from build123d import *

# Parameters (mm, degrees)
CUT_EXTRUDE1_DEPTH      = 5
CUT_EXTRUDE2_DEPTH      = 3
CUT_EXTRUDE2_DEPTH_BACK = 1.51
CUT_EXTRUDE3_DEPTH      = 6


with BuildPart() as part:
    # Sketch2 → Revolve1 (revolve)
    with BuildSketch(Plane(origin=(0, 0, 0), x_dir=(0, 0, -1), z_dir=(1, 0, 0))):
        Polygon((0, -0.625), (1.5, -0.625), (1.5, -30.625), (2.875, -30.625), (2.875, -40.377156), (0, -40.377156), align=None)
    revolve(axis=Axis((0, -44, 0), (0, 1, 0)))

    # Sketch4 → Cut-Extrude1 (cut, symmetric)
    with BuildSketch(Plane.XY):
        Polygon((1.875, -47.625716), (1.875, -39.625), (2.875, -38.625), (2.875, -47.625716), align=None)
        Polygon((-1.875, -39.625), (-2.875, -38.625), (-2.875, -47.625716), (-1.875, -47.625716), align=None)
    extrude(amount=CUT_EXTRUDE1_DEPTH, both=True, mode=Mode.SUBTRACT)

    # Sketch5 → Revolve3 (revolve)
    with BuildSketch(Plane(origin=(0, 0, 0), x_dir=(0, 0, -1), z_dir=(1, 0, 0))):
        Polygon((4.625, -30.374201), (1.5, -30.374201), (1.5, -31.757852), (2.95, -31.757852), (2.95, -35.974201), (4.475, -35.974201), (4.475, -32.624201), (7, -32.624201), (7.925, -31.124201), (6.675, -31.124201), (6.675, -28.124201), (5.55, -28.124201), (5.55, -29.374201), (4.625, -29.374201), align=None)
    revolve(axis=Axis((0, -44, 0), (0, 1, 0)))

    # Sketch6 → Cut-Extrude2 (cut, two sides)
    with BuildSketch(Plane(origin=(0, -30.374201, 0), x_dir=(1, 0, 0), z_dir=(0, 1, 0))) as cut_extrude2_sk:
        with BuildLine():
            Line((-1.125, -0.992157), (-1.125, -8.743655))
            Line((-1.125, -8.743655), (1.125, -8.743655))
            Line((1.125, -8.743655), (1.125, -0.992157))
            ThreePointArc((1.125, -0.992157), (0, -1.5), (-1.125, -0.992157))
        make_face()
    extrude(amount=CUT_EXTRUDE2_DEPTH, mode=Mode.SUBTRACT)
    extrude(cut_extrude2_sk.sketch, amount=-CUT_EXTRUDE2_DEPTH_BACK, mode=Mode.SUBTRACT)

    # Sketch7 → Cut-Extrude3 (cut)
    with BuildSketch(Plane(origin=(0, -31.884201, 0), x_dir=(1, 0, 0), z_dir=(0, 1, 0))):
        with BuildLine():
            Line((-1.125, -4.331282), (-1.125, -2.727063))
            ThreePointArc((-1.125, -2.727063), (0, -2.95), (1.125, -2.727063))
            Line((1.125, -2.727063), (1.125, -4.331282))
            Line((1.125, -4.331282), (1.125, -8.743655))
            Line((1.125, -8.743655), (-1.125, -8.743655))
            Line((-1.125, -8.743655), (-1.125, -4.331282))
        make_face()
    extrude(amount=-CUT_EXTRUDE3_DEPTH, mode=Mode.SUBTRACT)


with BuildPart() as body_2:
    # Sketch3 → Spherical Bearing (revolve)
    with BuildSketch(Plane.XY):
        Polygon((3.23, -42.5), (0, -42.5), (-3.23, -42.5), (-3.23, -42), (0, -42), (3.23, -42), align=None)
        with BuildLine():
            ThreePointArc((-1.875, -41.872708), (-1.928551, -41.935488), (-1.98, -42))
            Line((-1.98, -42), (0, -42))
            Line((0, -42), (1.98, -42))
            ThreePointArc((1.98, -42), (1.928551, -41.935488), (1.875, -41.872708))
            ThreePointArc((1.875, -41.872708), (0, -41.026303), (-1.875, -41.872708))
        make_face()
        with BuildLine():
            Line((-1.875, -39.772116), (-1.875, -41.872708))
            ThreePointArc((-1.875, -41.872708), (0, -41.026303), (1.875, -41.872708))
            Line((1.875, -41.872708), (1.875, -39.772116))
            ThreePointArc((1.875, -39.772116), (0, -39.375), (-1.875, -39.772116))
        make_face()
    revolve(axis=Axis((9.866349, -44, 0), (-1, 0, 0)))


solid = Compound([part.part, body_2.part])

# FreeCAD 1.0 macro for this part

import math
import FreeCAD as App
import Part
import Sketcher

V = App.Vector


def add_polygon(sketch, points):
    """Adds a closed chain of lines whose ends are joined by coincident constraints."""
    first, n = sketch.GeometryCount, len(points)
    for a, b in zip(points, points[1:] + points[:1]):
        sketch.addGeometry(Part.LineSegment(App.Vector(*a, 0), App.Vector(*b, 0)), False)
    for i in range(n):
        sketch.addConstraint(Sketcher.Constraint("Coincident", first + i, 2, first + (i + 1) % n, 1))

doc = App.newDocument("Part")
params = doc.addObject("Spreadsheet::Sheet", "Params")
for row, (alias, value) in enumerate([
    ("sketch1_width", "30 mm"),
    ("sketch1_height", "1.5 mm"),
    ("revolution_angle", "360 deg"),
    ("sketch2_width", "1 mm"),
    ("pocket1_length", "10 mm"),
    ("sketch3_width", "3 mm"),
    ("sketch3_width2", "1 mm"),
    ("sketch3_width3", "3.35 mm"),
    ("sketch3_width4", "1.25 mm"),
    ("sketch3_height", "1.45 mm"),
    ("revolution2_angle", "360 deg"),
    ("sketch4_radius", "1.500001 mm"),
    ("sketch4_width", "2.25 mm"),
    ("pocket2_length", "3 mm"),
    ("pocket2_length2", "1.51 mm"),
    ("sketch5_width", "2.25 mm"),
    ("pocket3_length", "6 mm"),
    ("sketch6_height", "0.5 mm"),
    ("sketch6_width", "6.46 mm"),
    ("sketch6_width2", "1.25 mm"),
    ("revolution3_angle", "360 deg"),
], start=1):
    params.set(f"A{row}", alias)
    params.set(f"B{row}", "=" + value)
    params.setAlias(f"B{row}", alias)

body = doc.addObject("PartDesign::Body", "Body")

# Sketch on YZ plane
sketch1 = doc.addObject("Sketcher::SketchObject", "Sketch")
body.addObject(sketch1)
sketch1.AttachmentSupport = (doc.YZ_Plane, [""])
sketch1.MapMode = "FlatFace"
add_polygon(sketch1, [(-0.6, -1.5), (-0.6, 0), (-40.4, 0), (-40.4, -2.9), (-30.6, -2.9), (-30.6, -1.5)])  # lines 0-5
sketch1.addConstraint(Sketcher.Constraint("Vertical", 0))
sketch1.addConstraint(Sketcher.Constraint("Horizontal", 1))
sketch1.addConstraint(Sketcher.Constraint("Vertical", 2))
sketch1.addConstraint(Sketcher.Constraint("Horizontal", 3))
sketch1.addConstraint(Sketcher.Constraint("Vertical", 4))
sketch1.addConstraint(Sketcher.Constraint("Horizontal", 5))
sketch1.addConstraint(Sketcher.Constraint("PointOnObject", 0, 2, -1))
sketch1.addConstraint(Sketcher.Constraint("DistanceX", 5, 1, 5, 2, 30.0))
sketch1.addConstraint(Sketcher.Constraint("DistanceY", 0, 1, 0, 2, 1.5))
sketch1.addConstraint(Sketcher.Constraint("DistanceY", 2, 2, 2, 1, 2.875))
sketch1.addConstraint(Sketcher.Constraint("DistanceX", 0, 2, -1, 1, 0.625))
sketch1.addConstraint(Sketcher.Constraint("DistanceX", 1, 2, 1, 1, 39.752156))
sketch1.setExpression("Constraints[13]", "Params.sketch1_width")
sketch1.setExpression("Constraints[14]", "Params.sketch1_height")
revolution = doc.addObject("PartDesign::Revolution", "Revolution")
body.addObject(revolution)
revolution.Profile = sketch1
revolution.ReferenceAxis = (sketch1, ["H_Axis"])
revolution.setExpression("Angle", "Params.revolution_angle")

# Sketch on XY plane
sketch2 = doc.addObject("Sketcher::SketchObject", "Sketch001")
body.addObject(sketch2)
sketch2.AttachmentSupport = (doc.XY_Plane, [""])
sketch2.MapMode = "FlatFace"
add_polygon(sketch2, [(1.9, -39.6), (1.9, -47.6), (2.9, -47.6), (2.9, -38.6)])  # lines 0-3
add_polygon(sketch2, [(-1.9, -39.6), (-2.9, -38.6), (-2.9, -47.6), (-1.9, -47.6)])  # lines 4-7
sketch2.addConstraint(Sketcher.Constraint("Vertical", 0))
sketch2.addConstraint(Sketcher.Constraint("Horizontal", 1))
sketch2.addConstraint(Sketcher.Constraint("Vertical", 2))
sketch2.addConstraint(Sketcher.Constraint("Vertical", 5))
sketch2.addConstraint(Sketcher.Constraint("Horizontal", 6))
sketch2.addConstraint(Sketcher.Constraint("Vertical", 7))
sketch2.addConstraint(Sketcher.Constraint("Symmetric", 2, 2, 4, 2, -2))
sketch2.addConstraint(Sketcher.Constraint("Symmetric", 0, 2, 6, 2, -2))
sketch2.addConstraint(Sketcher.Constraint("Perpendicular", 3, 4))
sketch2.addConstraint(Sketcher.Constraint("Horizontal", 3, 2, 7, 2))
sketch2.addConstraint(Sketcher.Constraint("DistanceX", 1, 1, 1, 2, 1.0))
sketch2.addConstraint(Sketcher.Constraint("DistanceX", 4, 2, 3, 2, 4.75))
sketch2.addConstraint(Sketcher.Constraint("DistanceY", 2, 2, -1, 1, 38.625))
sketch2.addConstraint(Sketcher.Constraint("DistanceY", 0, 2, 0, 1, 8.000716))
sketch2.setExpression("Constraints[18]", "Params.sketch2_width")
pocket1 = doc.addObject("PartDesign::Pocket", "Pocket")
body.addObject(pocket1)
pocket1.Profile = sketch2
pocket1.setExpression("Length", "Params.pocket1_length")
pocket1.Midplane = True

# Sketch on YZ plane
sketch3 = doc.addObject("Sketcher::SketchObject", "Sketch002")
body.addObject(sketch3)
sketch3.AttachmentSupport = (doc.YZ_Plane, [""])
sketch3.MapMode = "FlatFace"
add_polygon(sketch3, [(-30.4, -4.6), (-30.4, -1.5), (-31.8, -1.5), (-31.8, -3), (-36, -3), (-36, -4.5), (-32.6, -4.5), (-32.6, -7), (-31.1, -7.9), (-31.1, -6.7), (-28.1, -6.7), (-28.1, -5.5), (-29.4, -5.5), (-29.4, -4.6)])  # lines 0-13
sketch3.addConstraint(Sketcher.Constraint("Vertical", 0))
sketch3.addConstraint(Sketcher.Constraint("Horizontal", 1))
sketch3.addConstraint(Sketcher.Constraint("Vertical", 2))
sketch3.addConstraint(Sketcher.Constraint("Horizontal", 3))
sketch3.addConstraint(Sketcher.Constraint("Vertical", 4))
sketch3.addConstraint(Sketcher.Constraint("Horizontal", 5))
sketch3.addConstraint(Sketcher.Constraint("Vertical", 6))
sketch3.addConstraint(Sketcher.Constraint("Vertical", 8))
sketch3.addConstraint(Sketcher.Constraint("Horizontal", 9))
sketch3.addConstraint(Sketcher.Constraint("Vertical", 10))
sketch3.addConstraint(Sketcher.Constraint("Horizontal", 11))
sketch3.addConstraint(Sketcher.Constraint("Vertical", 12))
sketch3.addConstraint(Sketcher.Constraint("Horizontal", 13))
sketch3.addConstraint(Sketcher.Constraint("Equal", 11, 8))
sketch3.addConstraint(Sketcher.Constraint("DistanceX", 9, 1, 9, 2, 3.0))
sketch3.addConstraint(Sketcher.Constraint("DistanceX", 13, 2, 13, 1, 1.0))
sketch3.addConstraint(Sketcher.Constraint("DistanceY", 6, 2, -1, 1, 7.0))
sketch3.addConstraint(Sketcher.Constraint("DistanceX", 5, 1, 5, 2, 3.35))
sketch3.addConstraint(Sketcher.Constraint("DistanceX", 11, 2, 11, 1, 1.25))
sketch3.addConstraint(Sketcher.Constraint("DistanceY", 2, 2, 2, 1, 1.45))
sketch3.addConstraint(Sketcher.Constraint("DistanceY", 0, 2, -1, 1, 1.5))
sketch3.addConstraint(Sketcher.Constraint("DistanceX", 3, 2, 0, 2, 5.6))
sketch3.addConstraint(Sketcher.Constraint("DistanceY", 8, 2, 5, 2, 2.2))
sketch3.addConstraint(Sketcher.Constraint("DistanceY", 10, 2, 2, 2, 2.6))
sketch3.addConstraint(Sketcher.Constraint("DistanceY", 0, 1, 0, 2, 3.125))
sketch3.addConstraint(Sketcher.Constraint("DistanceY", 4, 2, 4, 1, 1.525))
sketch3.addConstraint(Sketcher.Constraint("DistanceX", 1, 2, 1, 1, 1.383651))
sketch3.addConstraint(Sketcher.Constraint("DistanceX", 0, 2, -1, 1, 30.374201))
sketch3.setExpression("Constraints[28]", "Params.sketch3_width")
sketch3.setExpression("Constraints[29]", "Params.sketch3_width2")
sketch3.setExpression("Constraints[31]", "Params.sketch3_width3")
sketch3.setExpression("Constraints[32]", "Params.sketch3_width4")
sketch3.setExpression("Constraints[33]", "Params.sketch3_height")
revolution2 = doc.addObject("PartDesign::Revolution", "Revolution001")
body.addObject(revolution2)
revolution2.Profile = sketch3
revolution2.ReferenceAxis = (sketch3, ["H_Axis"])
revolution2.setExpression("Angle", "Params.revolution2_angle")

# Sketch on XZ plane
sketch4 = doc.addObject("Sketcher::SketchObject", "Sketch003")
body.addObject(sketch4)
sketch4.AttachmentSupport = (doc.XZ_Plane, [""])
sketch4.MapMode = "FlatFace"
sketch4.AttachmentOffset = App.Placement(V(0, 0, 30.374201), App.Rotation())
sketch4.addGeometry(Part.LineSegment(V(-1.1, 1, 0), V(-1.1, 8.7, 0)), False)
sketch4.addGeometry(Part.LineSegment(V(-1.1, 8.7, 0), V(1.1, 8.7, 0)), False)
sketch4.addGeometry(Part.LineSegment(V(1.1, 8.7, 0), V(1.1, 1, 0)), False)
sketch4.addGeometry(Part.ArcOfCircle(Part.Circle(V(0, 0, 0), V(0, 0, 1), 1.5), math.radians(41), math.radians(139)), False)
sketch4.addConstraint(Sketcher.Constraint("Coincident", 0, 2, 1, 1))
sketch4.addConstraint(Sketcher.Constraint("Coincident", 1, 2, 2, 1))
sketch4.addConstraint(Sketcher.Constraint("Coincident", 2, 2, 3, 1))
sketch4.addConstraint(Sketcher.Constraint("Coincident", 3, 2, 0, 1))
sketch4.addConstraint(Sketcher.Constraint("Vertical", 0))
sketch4.addConstraint(Sketcher.Constraint("Horizontal", 1))
sketch4.addConstraint(Sketcher.Constraint("Vertical", 2))
sketch4.addConstraint(Sketcher.Constraint("Coincident", 3, 3, -1, 1))
sketch4.addConstraint(Sketcher.Constraint("Horizontal", 2, 2, 3, 2))
sketch4.addConstraint(Sketcher.Constraint("Radius", 3, 1.500001))
sketch4.addConstraint(Sketcher.Constraint("DistanceX", 1, 1, 1, 2, 2.25))
sketch4.addConstraint(Sketcher.Constraint("DistanceY", 0, 1, 0, 2, 7.751498))
sketch4.setExpression("Constraints[9]", "Params.sketch4_radius")
sketch4.setExpression("Constraints[10]", "Params.sketch4_width")
pocket2 = doc.addObject("PartDesign::Pocket", "Pocket001")
body.addObject(pocket2)
pocket2.Profile = sketch4
pocket2.Type = "TwoLengths"
pocket2.setExpression("Length", "Params.pocket2_length")
pocket2.setExpression("Length2", "Params.pocket2_length2")

# Sketch on XZ plane
sketch5 = doc.addObject("Sketcher::SketchObject", "Sketch004")
body.addObject(sketch5)
sketch5.AttachmentSupport = (doc.XZ_Plane, [""])
sketch5.MapMode = "FlatFace"
sketch5.AttachmentOffset = App.Placement(V(0, 0, 31.884201), App.Rotation())
sketch5.addGeometry(Part.ArcOfCircle(Part.Circle(V(0, 0, 0), V(0, 0, 1), 2.9), math.radians(68), math.radians(112)), False)
sketch5.addGeometry(Part.LineSegment(V(-1.1, 2.7, 0), V(-1.1, 8.7, 0)), False)
sketch5.addGeometry(Part.LineSegment(V(-1.1, 8.7, 0), V(1.1, 8.7, 0)), False)
sketch5.addGeometry(Part.LineSegment(V(1.1, 8.7, 0), V(1.1, 2.7, 0)), False)
sketch5.addConstraint(Sketcher.Constraint("Coincident", 0, 2, 1, 1))
sketch5.addConstraint(Sketcher.Constraint("Coincident", 1, 2, 2, 1))
sketch5.addConstraint(Sketcher.Constraint("Coincident", 2, 2, 3, 1))
sketch5.addConstraint(Sketcher.Constraint("Coincident", 3, 2, 0, 1))
sketch5.addConstraint(Sketcher.Constraint("Vertical", 1))
sketch5.addConstraint(Sketcher.Constraint("Horizontal", 2))
sketch5.addConstraint(Sketcher.Constraint("Vertical", 3))
sketch5.addConstraint(Sketcher.Constraint("Coincident", 0, 3, -1, 1))
sketch5.addConstraint(Sketcher.Constraint("Horizontal", 0, 2, 3, 2))
sketch5.addConstraint(Sketcher.Constraint("DistanceX", 2, 1, 2, 2, 2.25))
sketch5.addConstraint(Sketcher.Constraint("Radius", 0, 2.949995))
sketch5.addConstraint(Sketcher.Constraint("DistanceY", 1, 1, 1, 2, 6.016592))
sketch5.setExpression("Constraints[9]", "Params.sketch5_width")
pocket3 = doc.addObject("PartDesign::Pocket", "Pocket002")
body.addObject(pocket3)
pocket3.Profile = sketch5
pocket3.setExpression("Length", "Params.pocket3_length")
pocket3.Reversed = True
body2 = doc.addObject("PartDesign::Body", "Body001")

# Sketch on XY plane
sketch6 = doc.addObject("Sketcher::SketchObject", "Sketch005")
body2.addObject(sketch6)
sketch6.AttachmentSupport = (doc.getObject("XY_Plane001"), [""])
sketch6.MapMode = "FlatFace"
sketch6.addGeometry(Part.LineSegment(V(-3.23, -42.5, 0), V(3.23, -42.5, 0)), False)
sketch6.addGeometry(Part.LineSegment(V(3.23, -42.5, 0), V(3.23, -42, 0)), False)
sketch6.addGeometry(Part.LineSegment(V(3.23, -42, 0), V(1.98, -42, 0)), False)
sketch6.addGeometry(Part.ArcOfCircle(Part.Circle(V(0.000052, -43.526258, 0), V(0, 0, 1), 2.499931), math.radians(37.627103), math.radians(41.409642)), False)
sketch6.addGeometry(Part.LineSegment(V(1.875, -41.872708, 0), V(1.875, -39.772116, 0)), False)
sketch6.addGeometry(Part.ArcOfCircle(Part.Circle(V(0, -44.000004, 0), V(0, 0, 1), 4.625004), math.radians(66.083487), math.radians(113.916513)), False)
sketch6.addGeometry(Part.LineSegment(V(-1.875, -39.772116, 0), V(-1.875, -41.872708, 0)), False)
sketch6.addGeometry(Part.ArcOfCircle(Part.Circle(V(-0.000052, -43.526258, 0), V(0, 0, 1), 2.499931), math.radians(138.590358), math.radians(142.372897)), False)
sketch6.addGeometry(Part.LineSegment(V(-1.98, -42, 0), V(-3.23, -42, 0)), False)
sketch6.addGeometry(Part.LineSegment(V(-3.23, -42, 0), V(-3.23, -42.5, 0)), False)
sketch6.addGeometry(Part.LineSegment(V(3.23, -44, 0), V(-3.23, -44, 0)), True)  # axis
sketch6.addConstraint(Sketcher.Constraint("Coincident", 0, 2, 1, 1))
sketch6.addConstraint(Sketcher.Constraint("Coincident", 1, 2, 2, 1))
sketch6.addConstraint(Sketcher.Constraint("Coincident", 2, 2, 3, 1))
sketch6.addConstraint(Sketcher.Constraint("Coincident", 3, 2, 4, 1))
sketch6.addConstraint(Sketcher.Constraint("Coincident", 4, 2, 5, 1))
sketch6.addConstraint(Sketcher.Constraint("Coincident", 5, 2, 6, 1))
sketch6.addConstraint(Sketcher.Constraint("Coincident", 6, 2, 7, 1))
sketch6.addConstraint(Sketcher.Constraint("Coincident", 7, 2, 8, 1))
sketch6.addConstraint(Sketcher.Constraint("Coincident", 8, 2, 9, 1))
sketch6.addConstraint(Sketcher.Constraint("Coincident", 9, 2, 0, 1))
sketch6.addConstraint(Sketcher.Constraint("Horizontal", 0))
sketch6.addConstraint(Sketcher.Constraint("Vertical", 1))
sketch6.addConstraint(Sketcher.Constraint("Horizontal", 2))
sketch6.addConstraint(Sketcher.Constraint("Vertical", 4))
sketch6.addConstraint(Sketcher.Constraint("Vertical", 6))
sketch6.addConstraint(Sketcher.Constraint("Horizontal", 8))
sketch6.addConstraint(Sketcher.Constraint("Vertical", 9))
sketch6.addConstraint(Sketcher.Constraint("Horizontal", 10))
sketch6.addConstraint(Sketcher.Constraint("Equal", 3, 7))
sketch6.addConstraint(Sketcher.Constraint("Symmetric", 3, 3, 7, 3, -2))
sketch6.addConstraint(Sketcher.Constraint("Symmetric", 4, 2, 5, 2, -2))
sketch6.addConstraint(Sketcher.Constraint("Symmetric", 1, 2, 8, 2, -2))
sketch6.addConstraint(Sketcher.Constraint("Vertical", 1, 2, 10, 1))
sketch6.addConstraint(Sketcher.Constraint("Vertical", 9, 2, 10, 2))
sketch6.addConstraint(Sketcher.Constraint("DistanceY", 1, 1, 1, 2, 0.5))
sketch6.addConstraint(Sketcher.Constraint("DistanceY", 1, 2, -1, 1, 42.0))
sketch6.addConstraint(Sketcher.Constraint("DistanceY", 10, 1, -1, 1, 44.0))
sketch6.addConstraint(Sketcher.Constraint("DistanceX", 0, 1, 0, 2, 6.46))
sketch6.addConstraint(Sketcher.Constraint("DistanceX", 2, 2, 2, 1, 1.25))
sketch6.addConstraint(Sketcher.Constraint("Radius", 3, 2.499931))
sketch6.addConstraint(Sketcher.Constraint("DistanceX", 5, 2, 4, 2, 3.75))
sketch6.addConstraint(Sketcher.Constraint("Radius", 5, 4.625004))
sketch6.addConstraint(Sketcher.Constraint("DistanceY", 4, 1, 4, 2, 2.100592))
sketch6.addConstraint(Sketcher.Constraint("DistanceY", 3, 2, -1, 1, 41.872708))
sketch6.setExpression("Constraints[24]", "Params.sketch6_height")
sketch6.setExpression("Constraints[27]", "Params.sketch6_width")
sketch6.setExpression("Constraints[28]", "Params.sketch6_width2")
revolution3 = doc.addObject("PartDesign::Revolution", "Revolution002")
body2.addObject(revolution3)
revolution3.Profile = sketch6
revolution3.ReferenceAxis = (sketch6, ["Axis0"])
revolution3.setExpression("Angle", "Params.revolution3_angle")

doc.recompute()
